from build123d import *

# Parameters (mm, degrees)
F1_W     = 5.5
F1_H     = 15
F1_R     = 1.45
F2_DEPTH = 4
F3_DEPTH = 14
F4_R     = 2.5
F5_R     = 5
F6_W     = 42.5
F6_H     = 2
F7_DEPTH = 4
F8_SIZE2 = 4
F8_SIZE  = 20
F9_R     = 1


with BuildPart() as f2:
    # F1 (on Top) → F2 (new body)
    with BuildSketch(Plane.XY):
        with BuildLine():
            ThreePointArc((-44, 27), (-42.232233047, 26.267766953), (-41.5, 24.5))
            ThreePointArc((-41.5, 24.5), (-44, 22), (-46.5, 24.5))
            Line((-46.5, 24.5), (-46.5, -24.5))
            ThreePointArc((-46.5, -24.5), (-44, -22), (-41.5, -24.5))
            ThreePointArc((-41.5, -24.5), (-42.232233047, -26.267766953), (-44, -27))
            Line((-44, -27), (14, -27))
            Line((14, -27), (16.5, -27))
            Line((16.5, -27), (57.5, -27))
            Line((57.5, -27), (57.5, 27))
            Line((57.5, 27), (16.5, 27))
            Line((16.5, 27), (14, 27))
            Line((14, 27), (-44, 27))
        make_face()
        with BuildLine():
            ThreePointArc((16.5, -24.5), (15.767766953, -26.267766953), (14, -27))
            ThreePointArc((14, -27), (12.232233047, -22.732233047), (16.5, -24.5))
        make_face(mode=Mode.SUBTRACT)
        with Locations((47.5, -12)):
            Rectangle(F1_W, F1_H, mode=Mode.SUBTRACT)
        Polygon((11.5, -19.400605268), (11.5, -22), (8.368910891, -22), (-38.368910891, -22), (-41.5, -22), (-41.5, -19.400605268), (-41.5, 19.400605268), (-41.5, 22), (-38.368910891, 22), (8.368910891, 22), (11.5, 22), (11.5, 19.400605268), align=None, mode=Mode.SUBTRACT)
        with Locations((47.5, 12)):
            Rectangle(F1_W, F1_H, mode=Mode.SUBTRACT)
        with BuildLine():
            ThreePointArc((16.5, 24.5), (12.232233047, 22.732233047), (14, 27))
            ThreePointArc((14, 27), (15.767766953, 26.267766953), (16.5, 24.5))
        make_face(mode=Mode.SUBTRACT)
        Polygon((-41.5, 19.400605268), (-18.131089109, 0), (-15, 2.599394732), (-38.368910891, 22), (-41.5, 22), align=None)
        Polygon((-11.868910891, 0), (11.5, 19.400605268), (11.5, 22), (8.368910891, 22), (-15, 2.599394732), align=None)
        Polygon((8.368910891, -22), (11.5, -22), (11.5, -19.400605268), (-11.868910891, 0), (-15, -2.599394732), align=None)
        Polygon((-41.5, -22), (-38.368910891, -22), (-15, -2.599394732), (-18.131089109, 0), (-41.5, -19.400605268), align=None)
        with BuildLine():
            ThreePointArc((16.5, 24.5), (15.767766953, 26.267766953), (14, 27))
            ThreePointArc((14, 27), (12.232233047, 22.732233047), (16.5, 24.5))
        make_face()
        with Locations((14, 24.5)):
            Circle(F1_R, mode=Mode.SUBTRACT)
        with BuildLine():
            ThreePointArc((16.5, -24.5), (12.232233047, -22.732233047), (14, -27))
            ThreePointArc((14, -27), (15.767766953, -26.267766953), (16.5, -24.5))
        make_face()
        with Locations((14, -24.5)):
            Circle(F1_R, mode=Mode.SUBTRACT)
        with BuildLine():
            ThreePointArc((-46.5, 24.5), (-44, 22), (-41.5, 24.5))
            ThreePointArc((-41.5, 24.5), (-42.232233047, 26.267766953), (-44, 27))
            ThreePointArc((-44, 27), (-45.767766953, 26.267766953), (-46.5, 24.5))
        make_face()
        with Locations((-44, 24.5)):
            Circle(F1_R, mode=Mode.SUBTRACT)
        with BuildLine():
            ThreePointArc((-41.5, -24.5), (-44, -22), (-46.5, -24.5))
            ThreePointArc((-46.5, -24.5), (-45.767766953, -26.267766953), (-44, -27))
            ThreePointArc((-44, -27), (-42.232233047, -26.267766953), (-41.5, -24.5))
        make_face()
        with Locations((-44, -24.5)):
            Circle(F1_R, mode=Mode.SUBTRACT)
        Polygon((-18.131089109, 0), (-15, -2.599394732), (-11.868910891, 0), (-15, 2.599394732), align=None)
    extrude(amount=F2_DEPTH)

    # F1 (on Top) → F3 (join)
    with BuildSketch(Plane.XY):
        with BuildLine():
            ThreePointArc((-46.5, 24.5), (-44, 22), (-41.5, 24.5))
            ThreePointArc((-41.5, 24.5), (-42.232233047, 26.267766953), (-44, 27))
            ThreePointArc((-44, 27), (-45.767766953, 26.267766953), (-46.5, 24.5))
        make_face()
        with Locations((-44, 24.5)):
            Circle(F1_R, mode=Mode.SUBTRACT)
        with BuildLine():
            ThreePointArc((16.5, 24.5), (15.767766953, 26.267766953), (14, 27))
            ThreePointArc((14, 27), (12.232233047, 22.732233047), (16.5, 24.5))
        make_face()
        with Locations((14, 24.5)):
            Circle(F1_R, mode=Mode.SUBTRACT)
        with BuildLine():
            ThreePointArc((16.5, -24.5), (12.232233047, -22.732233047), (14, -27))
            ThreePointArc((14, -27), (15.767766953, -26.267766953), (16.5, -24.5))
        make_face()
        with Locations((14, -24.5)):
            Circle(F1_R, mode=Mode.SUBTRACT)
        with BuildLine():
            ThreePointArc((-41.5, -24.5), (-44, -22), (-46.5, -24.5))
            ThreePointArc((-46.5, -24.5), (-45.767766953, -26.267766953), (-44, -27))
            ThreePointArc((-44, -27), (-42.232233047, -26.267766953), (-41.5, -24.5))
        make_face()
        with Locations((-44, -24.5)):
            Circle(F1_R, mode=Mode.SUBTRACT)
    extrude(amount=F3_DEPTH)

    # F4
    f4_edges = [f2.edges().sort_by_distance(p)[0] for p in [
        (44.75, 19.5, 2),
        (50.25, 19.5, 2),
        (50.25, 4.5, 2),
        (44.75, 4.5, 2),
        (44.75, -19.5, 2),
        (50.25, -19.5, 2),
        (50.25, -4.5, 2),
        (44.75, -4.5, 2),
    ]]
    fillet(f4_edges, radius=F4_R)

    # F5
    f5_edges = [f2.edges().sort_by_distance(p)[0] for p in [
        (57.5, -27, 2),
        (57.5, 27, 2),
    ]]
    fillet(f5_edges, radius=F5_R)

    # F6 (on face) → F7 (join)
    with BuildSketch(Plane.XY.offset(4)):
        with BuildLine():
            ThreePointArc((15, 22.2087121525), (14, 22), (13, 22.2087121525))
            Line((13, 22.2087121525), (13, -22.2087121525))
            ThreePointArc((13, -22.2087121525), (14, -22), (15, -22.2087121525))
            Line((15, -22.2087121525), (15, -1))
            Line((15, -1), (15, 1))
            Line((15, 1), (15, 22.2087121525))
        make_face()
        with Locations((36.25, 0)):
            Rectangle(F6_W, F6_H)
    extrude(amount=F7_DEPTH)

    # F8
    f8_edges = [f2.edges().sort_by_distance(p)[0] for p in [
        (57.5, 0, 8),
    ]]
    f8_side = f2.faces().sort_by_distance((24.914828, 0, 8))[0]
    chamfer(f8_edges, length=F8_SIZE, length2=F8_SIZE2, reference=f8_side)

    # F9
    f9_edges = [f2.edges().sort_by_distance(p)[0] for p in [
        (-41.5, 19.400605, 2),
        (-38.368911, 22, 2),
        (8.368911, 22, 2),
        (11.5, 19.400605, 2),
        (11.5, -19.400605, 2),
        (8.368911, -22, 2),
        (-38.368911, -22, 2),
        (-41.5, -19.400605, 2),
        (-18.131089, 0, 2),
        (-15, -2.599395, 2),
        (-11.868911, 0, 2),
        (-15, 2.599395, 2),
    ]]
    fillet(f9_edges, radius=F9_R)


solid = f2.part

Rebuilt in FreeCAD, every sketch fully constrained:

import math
import FreeCAD as App
import Part
import Sketcher
from FreeCAD import Vector
Q = App.Units.Quantity


def edges_at(feature, points):
    """Names of the edges that pass closest to the given points."""
    edges = feature.Shape.Edges
    near = lambda p: min(range(len(edges)), key=lambda i: edges[i].distToShape(Part.Vertex(*p))[0])
    return sorted({f"Edge{near(p) + 1}" for p in points})

doc = App.newDocument("Part")
body = doc.addObject("PartDesign::Body", "Body")

# Sketch on XY plane
sketch1 = body.newObject("Sketcher::SketchObject", "Sketch")
sketch1.AttachmentSupport = (doc.getObject("XY_Plane"), [""])
sketch1.MapMode = "FlatFace"
sketch1.addGeometry(Part.LineSegment(Vector(-44, -27, 0), Vector(57.5, -27, 0)), False)
sketch1.addGeometry(Part.LineSegment(Vector(57.5, -27, 0), Vector(57.5, 27, 0)), False)
sketch1.addGeometry(Part.LineSegment(Vector(57.5, 27, 0), Vector(-44, 27, 0)), False)
sketch1.addGeometry(Part.ArcOfCircle(Part.Circle(Vector(-44, 24.5, 0), Vector(0, 0, 1), 2.5), math.radians(90), math.radians(180)), False)
sketch1.addGeometry(Part.LineSegment(Vector(-46.5, 24.5, 0), Vector(-46.5, -24.5, 0)), False)
sketch1.addGeometry(Part.ArcOfCircle(Part.Circle(Vector(-44, -24.5, 0), Vector(0, 0, 1), 2.5), math.radians(180), math.radians(270)), False)
sketch1.addGeometry(Part.Circle(Vector(-44, -24.5, 0), Vector(0, 0, 1), 1.4), False)
sketch1.addGeometry(Part.LineSegment(Vector(8.4, -22, 0), Vector(-38.4, -22, 0)), False)
sketch1.addGeometry(Part.LineSegment(Vector(-38.4, -22, 0), Vector(-15, -2.6, 0)), False)
sketch1.addGeometry(Part.LineSegment(Vector(-15, -2.6, 0), Vector(8.4, -22, 0)), False)
sketch1.addGeometry(Part.Circle(Vector(14, -24.5, 0), Vector(0, 0, 1), 1.4), False)
sketch1.addGeometry(Part.LineSegment(Vector(50.2, -19.5, 0), Vector(44.8, -19.5, 0)), False)
sketch1.addGeometry(Part.LineSegment(Vector(44.8, -19.5, 0), Vector(44.8, -4.5, 0)), False)
sketch1.addGeometry(Part.LineSegment(Vector(44.8, -4.5, 0), Vector(50.2, -4.5, 0)), False)
sketch1.addGeometry(Part.LineSegment(Vector(50.2, -4.5, 0), Vector(50.2, -19.5, 0)), False)
sketch1.addGeometry(Part.LineSegment(Vector(-41.5, 19.4, 0), Vector(-18.1, 0, 0)), False)
sketch1.addGeometry(Part.LineSegment(Vector(-18.1, 0, 0), Vector(-41.5, -19.4, 0)), False)
sketch1.addGeometry(Part.LineSegment(Vector(-41.5, -19.4, 0), Vector(-41.5, 19.4, 0)), False)
sketch1.addGeometry(Part.LineSegment(Vector(11.5, -19.4, 0), Vector(-11.9, 0, 0)), False)
sketch1.addGeometry(Part.LineSegment(Vector(-11.9, 0, 0), Vector(11.5, 19.4, 0)), False)
sketch1.addGeometry(Part.LineSegment(Vector(11.5, 19.4, 0), Vector(11.5, -19.4, 0)), False)
sketch1.addGeometry(Part.LineSegment(Vector(8.4, 22, 0), Vector(-15, 2.6, 0)), False)
sketch1.addGeometry(Part.LineSegment(Vector(-15, 2.6, 0), Vector(-38.4, 22, 0)), False)
sketch1.addGeometry(Part.LineSegment(Vector(-38.4, 22, 0), Vector(8.4, 22, 0)), False)
sketch1.addGeometry(Part.Circle(Vector(-44, 24.5, 0), Vector(0, 0, 1), 1.4), False)
sketch1.addGeometry(Part.LineSegment(Vector(50.2, 4.5, 0), Vector(44.8, 4.5, 0)), False)
sketch1.addGeometry(Part.LineSegment(Vector(44.8, 4.5, 0), Vector(44.8, 19.5, 0)), False)
sketch1.addGeometry(Part.LineSegment(Vector(44.8, 19.5, 0), Vector(50.2, 19.5, 0)), False)
sketch1.addGeometry(Part.LineSegment(Vector(50.2, 19.5, 0), Vector(50.2, 4.5, 0)), False)
sketch1.addGeometry(Part.Circle(Vector(14, 24.5, 0), Vector(0, 0, 1), 1.4), False)
sketch1.addConstraint(Sketcher.Constraint("Coincident", 0, 2, 1, 1))
sketch1.addConstraint(Sketcher.Constraint("Coincident", 1, 2, 2, 1))
sketch1.addConstraint(Sketcher.Constraint("Tangent", 2, 2, 3, 1))
sketch1.addConstraint(Sketcher.Constraint("Tangent", 3, 2, 4, 1))
sketch1.addConstraint(Sketcher.Constraint("Tangent", 4, 2, 5, 1))
sketch1.addConstraint(Sketcher.Constraint("Tangent", 5, 2, 0, 1))
sketch1.addConstraint(Sketcher.Constraint("Coincident", 7, 2, 8, 1))
sketch1.addConstraint(Sketcher.Constraint("Coincident", 8, 2, 9, 1))
sketch1.addConstraint(Sketcher.Constraint("Coincident", 9, 2, 7, 1))
sketch1.addConstraint(Sketcher.Constraint("Coincident", 11, 2, 12, 1))
sketch1.addConstraint(Sketcher.Constraint("Coincident", 12, 2, 13, 1))
sketch1.addConstraint(Sketcher.Constraint("Coincident", 13, 2, 14, 1))
sketch1.addConstraint(Sketcher.Constraint("Coincident", 14, 2, 11, 1))
sketch1.addConstraint(Sketcher.Constraint("Coincident", 15, 2, 16, 1))
sketch1.addConstraint(Sketcher.Constraint("Coincident", 16, 2, 17, 1))
sketch1.addConstraint(Sketcher.Constraint("Coincident", 17, 2, 15, 1))
sketch1.addConstraint(Sketcher.Constraint("Coincident", 18, 2, 19, 1))
sketch1.addConstraint(Sketcher.Constraint("Coincident", 19, 2, 20, 1))
sketch1.addConstraint(Sketcher.Constraint("Coincident", 20, 2, 18, 1))
sketch1.addConstraint(Sketcher.Constraint("Coincident", 21, 2, 22, 1))
sketch1.addConstraint(Sketcher.Constraint("Coincident", 22, 2, 23, 1))
sketch1.addConstraint(Sketcher.Constraint("Coincident", 23, 2, 21, 1))
sketch1.addConstraint(Sketcher.Constraint("Coincident", 25, 2, 26, 1))
sketch1.addConstraint(Sketcher.Constraint("Coincident", 26, 2, 27, 1))
sketch1.addConstraint(Sketcher.Constraint("Coincident", 27, 2, 28, 1))
sketch1.addConstraint(Sketcher.Constraint("Coincident", 28, 2, 25, 1))
sketch1.addConstraint(Sketcher.Constraint("Horizontal", 0))
sketch1.addConstraint(Sketcher.Constraint("Vertical", 1))
sketch1.addConstraint(Sketcher.Constraint("Horizontal", 2))
sketch1.addConstraint(Sketcher.Constraint("Vertical", 4))
sketch1.addConstraint(Sketcher.Constraint("Horizontal", 7))
sketch1.addConstraint(Sketcher.Constraint("Horizontal", 11))
sketch1.addConstraint(Sketcher.Constraint("Vertical", 12))
sketch1.addConstraint(Sketcher.Constraint("Horizontal", 13))
sketch1.addConstraint(Sketcher.Constraint("Vertical", 14))
sketch1.addConstraint(Sketcher.Constraint("Vertical", 17))
sketch1.addConstraint(Sketcher.Constraint("Vertical", 20))
sketch1.addConstraint(Sketcher.Constraint("Horizontal", 23))
sketch1.addConstraint(Sketcher.Constraint("Horizontal", 25))
sketch1.addConstraint(Sketcher.Constraint("Vertical", 26))
sketch1.addConstraint(Sketcher.Constraint("Horizontal", 27))
sketch1.addConstraint(Sketcher.Constraint("Vertical", 28))
sketch1.addConstraint(Sketcher.Constraint("Coincident", 6, 3, 5, 3))
sketch1.addConstraint(Sketcher.Constraint("Coincident", 24, 3, 3, 3))
sketch1.addConstraint(Sketcher.Constraint("Equal", 3, 5))
sketch1.addConstraint(Sketcher.Constraint("Equal", 6, 10))
sketch1.addConstraint(Sketcher.Constraint("Equal", 10, 24))
sketch1.addConstraint(Sketcher.Constraint("Equal", 24, 29))
sketch1.addConstraint(Sketcher.Constraint("Symmetric", 10, 3, 29, 3, -1))
sketch1.addConstraint(Sketcher.Constraint("Symmetric", 8, 2, 21, 2, -1))
sketch1.addConstraint(Sketcher.Constraint("Symmetric", 7, 2, 22, 2, -1))
sketch1.addConstraint(Sketcher.Constraint("Symmetric", 12, 2, 25, 2, -1))
sketch1.addConstraint(Sketcher.Constraint("Symmetric", 14, 2, 27, 2, -1))
sketch1.addConstraint(Sketcher.Constraint("PointOnObject", 15, 2, -1))
sketch1.addConstraint(Sketcher.Constraint("PointOnObject", 18, 2, -1))
sketch1.addConstraint(Sketcher.Constraint("Parallel", 9, 15))
sketch1.addConstraint(Sketcher.Constraint("Parallel", 8, 16))
sketch1.addConstraint(Sketcher.Constraint("Parallel", 15, 18))
sketch1.addConstraint(Sketcher.Constraint("Parallel", 16, 19))
sketch1.addConstraint(Sketcher.Constraint("Parallel", 19, 21))
sketch1.addConstraint(Sketcher.Constraint("Parallel", 18, 22))
sketch1.addConstraint(Sketcher.Constraint("Horizontal", 6, 3, 10, 3))
sketch1.addConstraint(Sketcher.Constraint("Horizontal", 24, 3, 29, 3))
sketch1.addConstraint(Sketcher.Constraint("Horizontal", 17, 2, 19, 2))
sketch1.addConstraint(Sketcher.Constraint("Equal", 9, 15))
sketch1.addConstraint(Sketcher.Constraint("Diameter", 6, Q("2.9 mm")))
sketch1.addConstraint(Sketcher.Constraint("Radius", 3, Q("2.5 mm")))
sketch1.addConstraint(Sketcher.Constraint("DistanceY", 1, 1, 1, 2, Q("54 mm")))
sketch1.addConstraint(Sketcher.Constraint("DistanceY", 12, 1, 12, 2, Q("15 mm")))
sketch1.addConstraint(Sketcher.Constraint("DistanceX", 0, 1, 0, 2, Q("101.5 mm")))
sketch1.addConstraint(Sketcher.Constraint("DistanceX", 11, 2, 11, 1, Q("5.5 mm")))
sketch1.addConstraint(Sketcher.Constraint("DistanceX", 3, 3, -1, 1, Q("44 mm")))
sketch1.addConstraint(Sketcher.Constraint("DistanceX", -1, 1, 10, 3, Q("14 mm")))
sketch1.addConstraint(Sketcher.Constraint("DistanceY", 7, 2, -1, 1, Q("22 mm")))
sketch1.addConstraint(Sketcher.Constraint("DistanceX", 8, 2, -1, 1, Q("15 mm")))
sketch1.addConstraint(Sketcher.Constraint("DistanceY", 10, 3, 11, 2, Q("5 mm")))
sketch1.addConstraint(Sketcher.Constraint("DistanceX", 4, 2, 16, 2, Q("5 mm")))
sketch1.addConstraint(Sketcher.Constraint("DistanceX", -1, 1, 19, 2, Q("11.5 mm")))
sketch1.addConstraint(Sketcher.Constraint("DistanceX", -1, 1, 11, 2, Q("44.75 mm")))
sketch1.addConstraint(Sketcher.Constraint("DistanceX", 7, 2, 7, 1, Q("46.737822 mm")))
sketch1.addConstraint(Sketcher.Constraint("DistanceY", 17, 1, 17, 2, Q("38.801211 mm")))
pad1 = body.newObject("PartDesign::Pad", "Pad")
pad1.Profile = sketch1
pad1.Length = 4

# Sketch on XY plane
sketch2 = body.newObject("Sketcher::SketchObject", "Sketch001")
sketch2.AttachmentSupport = (doc.getObject("XY_Plane"), [""])
sketch2.MapMode = "FlatFace"
sketch2.addGeometry(Part.ArcOfCircle(Part.Circle(Vector(-44, 24.5, 0), Vector(0, 0, 1), 2.5), math.radians(180), math.radians(360)), False)
sketch2.addGeometry(Part.ArcOfCircle(Part.Circle(Vector(-44, 24.5, 0), Vector(0, 0, 1), 2.5), math.radians(0), math.radians(90)), False)
sketch2.addGeometry(Part.ArcOfCircle(Part.Circle(Vector(-44, 24.5, 0), Vector(0, 0, 1), 2.5), math.radians(90), math.radians(180)), False)
sketch2.addGeometry(Part.Circle(Vector(-44, 24.5, 0), Vector(0, 0, 1), 1.4), False)
sketch2.addGeometry(Part.ArcOfCircle(Part.Circle(Vector(14, 24.5, 0), Vector(0, 0, 1), 2.5), math.radians(0), math.radians(90)), False)
sketch2.addGeometry(Part.ArcOfCircle(Part.Circle(Vector(14, 24.5, 0), Vector(0, 0, 1), 2.5), math.radians(90), math.radians(360)), False)
sketch2.addGeometry(Part.Circle(Vector(14, 24.5, 0), Vector(0, 0, 1), 1.4), False)
sketch2.addGeometry(Part.ArcOfCircle(Part.Circle(Vector(14, -24.5, 0), Vector(0, 0, 1), 2.5), math.radians(0), math.radians(270)), False)
sketch2.addGeometry(Part.ArcOfCircle(Part.Circle(Vector(14, -24.5, 0), Vector(0, 0, 1), 2.5), math.radians(-90), math.radians(0)), False)
sketch2.addGeometry(Part.Circle(Vector(14, -24.5, 0), Vector(0, 0, 1), 1.4), False)
sketch2.addGeometry(Part.ArcOfCircle(Part.Circle(Vector(-44, -24.5, 0), Vector(0, 0, 1), 2.5), math.radians(0), math.radians(180)), False)
sketch2.addGeometry(Part.ArcOfCircle(Part.Circle(Vector(-44, -24.5, 0), Vector(0, 0, 1), 2.5), math.radians(180), math.radians(270)), False)
sketch2.addGeometry(Part.ArcOfCircle(Part.Circle(Vector(-44, -24.5, 0), Vector(0, 0, 1), 2.5), math.radians(-90), math.radians(0)), False)
sketch2.addGeometry(Part.Circle(Vector(-44, -24.5, 0), Vector(0, 0, 1), 1.4), False)
sketch2.addConstraint(Sketcher.Constraint("Tangent", 0, 2, 1, 1))
sketch2.addConstraint(Sketcher.Constraint("Tangent", 1, 2, 2, 1))
sketch2.addConstraint(Sketcher.Constraint("Tangent", 2, 2, 0, 1))
sketch2.addConstraint(Sketcher.Constraint("Tangent", 4, 1, 5, 2))
sketch2.addConstraint(Sketcher.Constraint("Coincident", 5, 1, 4, 2))
sketch2.addConstraint(Sketcher.Constraint("Tangent", 7, 1, 8, 2))
sketch2.addConstraint(Sketcher.Constraint("Coincident", 8, 1, 7, 2))
sketch2.addConstraint(Sketcher.Constraint("Tangent", 10, 2, 11, 1))
sketch2.addConstraint(Sketcher.Constraint("Tangent", 11, 2, 12, 1))
sketch2.addConstraint(Sketcher.Constraint("Tangent", 12, 2, 10, 1))
sketch2.addConstraint(Sketcher.Constraint("Coincident", 3, 3, 0, 3))
sketch2.addConstraint(Sketcher.Constraint("Coincident", 6, 3, 4, 3))
sketch2.addConstraint(Sketcher.Constraint("Coincident", 9, 3, 7, 3))
sketch2.addConstraint(Sketcher.Constraint("Coincident", 13, 3, 10, 3))
sketch2.addConstraint(Sketcher.Constraint("Equal", 2, 4))
sketch2.addConstraint(Sketcher.Constraint("Equal", 3, 6))
sketch2.addConstraint(Sketcher.Constraint("Equal", 5, 7))
sketch2.addConstraint(Sketcher.Constraint("Equal", 6, 9))
sketch2.addConstraint(Sketcher.Constraint("Equal", 8, 10))
sketch2.addConstraint(Sketcher.Constraint("Equal", 9, 13))
sketch2.addConstraint(Sketcher.Constraint("Symmetric", 4, 3, 7, 3, -1))
sketch2.addConstraint(Sketcher.Constraint("Symmetric", 0, 3, 10, 3, -1))
sketch2.addConstraint(Sketcher.Constraint("Horizontal", 3, 3, 4, 3))
sketch2.addConstraint(Sketcher.Constraint("Horizontal", 6, 3, 0, 2))
sketch2.addConstraint(Sketcher.Constraint("Horizontal", 0, 2, 2, 2))
sketch2.addConstraint(Sketcher.Constraint("Horizontal", 2, 2, 4, 1))
sketch2.addConstraint(Sketcher.Constraint("Horizontal", 13, 3, 7, 1))
sketch2.addConstraint(Sketcher.Constraint("Horizontal", 7, 1, 10, 2))
sketch2.addConstraint(Sketcher.Constraint("Horizontal", 10, 2, 12, 2))
sketch2.addConstraint(Sketcher.Constraint("Vertical", 13, 3, 1, 2))
sketch2.addConstraint(Sketcher.Constraint("Vertical", 9, 3, 5, 1))
sketch2.addConstraint(Sketcher.Constraint("Vertical", 5, 1, 8, 1))
sketch2.addConstraint(Sketcher.Constraint("Vertical", 1, 2, 11, 2))
sketch2.addConstraint(Sketcher.Constraint("Diameter", 3, Q("2.9 mm")))
sketch2.addConstraint(Sketcher.Constraint("Radius", 0, Q("2.5 mm")))
sketch2.addConstraint(Sketcher.Constraint("DistanceX", 0, 3, -1, 1, Q("44 mm")))
sketch2.addConstraint(Sketcher.Constraint("DistanceX", -1, 1, 4, 3, Q("14 mm")))
sketch2.addConstraint(Sketcher.Constraint("DistanceY", -1, 1, 1, 2, Q("27 mm")))
pad2 = body.newObject("PartDesign::Pad", "Pad001")
pad2.Profile = sketch2
pad2.Length = 14
doc.recompute()

fillet = body.newObject("PartDesign::Fillet", "Fillet")
fillet.Base = (pad2, edges_at(pad2, [
    (44.75, 19.5, 2),
    (50.25, 19.5, 2),
    (50.25, 4.5, 2),
    (44.75, 4.5, 2),
    (44.75, -19.5, 2),
    (50.25, -19.5, 2),
    (50.25, -4.5, 2),
    (44.75, -4.5, 2),
]))
fillet.Radius = 2.5
doc.recompute()

fillet2 = body.newObject("PartDesign::Fillet", "Fillet001")
fillet2.Base = (fillet, edges_at(fillet, [(57.5, -27, 2), (57.5, 27, 2)]))
fillet2.Radius = 5

# Sketch on XY plane
sketch3 = body.newObject("Sketcher::SketchObject", "Sketch002")
sketch3.AttachmentSupport = (doc.getObject("XY_Plane"), [""])
sketch3.MapMode = "FlatFace"
sketch3.AttachmentOffset = App.Placement(Vector(0, 0, 4), App.Rotation())
sketch3.addGeometry(Part.ArcOfCircle(Part.Circle(Vector(14, 24.5, 0), Vector(0, 0, 1), 2.5), math.radians(-114), math.radians(-66)), False)
sketch3.addGeometry(Part.LineSegment(Vector(13, 22.2, 0), Vector(13, -22.2, 0)), False)
sketch3.addGeometry(Part.ArcOfCircle(Part.Circle(Vector(14, -24.5, 0), Vector(0, 0, 1), 2.5), math.radians(66), math.radians(114)), False)
sketch3.addGeometry(Part.LineSegment(Vector(15, -22.2, 0), Vector(15, -1, 0)), False)
sketch3.addGeometry(Part.LineSegment(Vector(15, -1, 0), Vector(57.5, -1, 0)), False)
sketch3.addGeometry(Part.LineSegment(Vector(57.5, -1, 0), Vector(57.5, 1, 0)), False)
sketch3.addGeometry(Part.LineSegment(Vector(57.5, 1, 0), Vector(15, 1, 0)), False)
sketch3.addGeometry(Part.LineSegment(Vector(15, 1, 0), Vector(15, 22.2, 0)), False)
sketch3.addConstraint(Sketcher.Constraint("Coincident", 0, 1, 1, 1))
sketch3.addConstraint(Sketcher.Constraint("Coincident", 1, 2, 2, 2))
sketch3.addConstraint(Sketcher.Constraint("Coincident", 2, 1, 3, 1))
sketch3.addConstraint(Sketcher.Constraint("Coincident", 3, 2, 4, 1))
sketch3.addConstraint(Sketcher.Constraint("Coincident", 4, 2, 5, 1))
sketch3.addConstraint(Sketcher.Constraint("Coincident", 5, 2, 6, 1))
sketch3.addConstraint(Sketcher.Constraint("Coincident", 6, 2, 7, 1))
sketch3.addConstraint(Sketcher.Constraint("Coincident", 7, 2, 0, 2))
sketch3.addConstraint(Sketcher.Constraint("Vertical", 1))
sketch3.addConstraint(Sketcher.Constraint("Vertical", 3))
sketch3.addConstraint(Sketcher.Constraint("Horizontal", 4))
sketch3.addConstraint(Sketcher.Constraint("Vertical", 5))
sketch3.addConstraint(Sketcher.Constraint("Horizontal", 6))
sketch3.addConstraint(Sketcher.Constraint("Vertical", 7))
sketch3.addConstraint(Sketcher.Constraint("Equal", 0, 2))
sketch3.addConstraint(Sketcher.Constraint("Symmetric", 0, 3, 2, 3, -1))
sketch3.addConstraint(Sketcher.Constraint("Symmetric", 3, 2, 6, 2, -1))
sketch3.addConstraint(Sketcher.Constraint("Horizontal", 1, 2, 2, 1))
sketch3.addConstraint(Sketcher.Constraint("Radius", 0, Q("2.5 mm")))
sketch3.addConstraint(Sketcher.Constraint("DistanceY", 5, 1, 5, 2, Q("2 mm")))
sketch3.addConstraint(Sketcher.Constraint("DistanceX", 4, 1, 4, 2, Q("42.5 mm")))
sketch3.addConstraint(Sketcher.Constraint("DistanceX", -1, 1, 0, 3, Q("14 mm")))
sketch3.addConstraint(Sketcher.Constraint("DistanceX", -1, 1, 0, 1, Q("13 mm")))
sketch3.addConstraint(Sketcher.Constraint("DistanceY", 2, 3, 0, 3, Q("49 mm")))
pad3 = body.newObject("PartDesign::Pad", "Pad002")
pad3.Profile = sketch3
pad3.Length = 4
doc.recompute()

chamfer = body.newObject("PartDesign::Chamfer", "Chamfer")
chamfer.Base = (pad3, edges_at(pad3, [(57.5, 0, 8)]))
chamfer.ChamferType = "Two distances"
chamfer.Size = 20
chamfer.Size2 = 4
doc.recompute()

fillet3 = body.newObject("PartDesign::Fillet", "Fillet002")
fillet3.Base = (chamfer, edges_at(chamfer, [
    (-41.5, 19.401, 2),
    (-38.369, 22, 2),
    (8.369, 22, 2),
    (11.5, 19.401, 2),
    (11.5, -19.401, 2),
    (8.369, -22, 2),
    (-38.369, -22, 2),
    (-41.5, -19.401, 2),
    (-18.131, 0, 2),
    (-15, -2.599, 2),
    (-11.869, 0, 2),
    (-15, 2.599, 2),
]))
fillet3.Radius = 1

doc.recompute()
